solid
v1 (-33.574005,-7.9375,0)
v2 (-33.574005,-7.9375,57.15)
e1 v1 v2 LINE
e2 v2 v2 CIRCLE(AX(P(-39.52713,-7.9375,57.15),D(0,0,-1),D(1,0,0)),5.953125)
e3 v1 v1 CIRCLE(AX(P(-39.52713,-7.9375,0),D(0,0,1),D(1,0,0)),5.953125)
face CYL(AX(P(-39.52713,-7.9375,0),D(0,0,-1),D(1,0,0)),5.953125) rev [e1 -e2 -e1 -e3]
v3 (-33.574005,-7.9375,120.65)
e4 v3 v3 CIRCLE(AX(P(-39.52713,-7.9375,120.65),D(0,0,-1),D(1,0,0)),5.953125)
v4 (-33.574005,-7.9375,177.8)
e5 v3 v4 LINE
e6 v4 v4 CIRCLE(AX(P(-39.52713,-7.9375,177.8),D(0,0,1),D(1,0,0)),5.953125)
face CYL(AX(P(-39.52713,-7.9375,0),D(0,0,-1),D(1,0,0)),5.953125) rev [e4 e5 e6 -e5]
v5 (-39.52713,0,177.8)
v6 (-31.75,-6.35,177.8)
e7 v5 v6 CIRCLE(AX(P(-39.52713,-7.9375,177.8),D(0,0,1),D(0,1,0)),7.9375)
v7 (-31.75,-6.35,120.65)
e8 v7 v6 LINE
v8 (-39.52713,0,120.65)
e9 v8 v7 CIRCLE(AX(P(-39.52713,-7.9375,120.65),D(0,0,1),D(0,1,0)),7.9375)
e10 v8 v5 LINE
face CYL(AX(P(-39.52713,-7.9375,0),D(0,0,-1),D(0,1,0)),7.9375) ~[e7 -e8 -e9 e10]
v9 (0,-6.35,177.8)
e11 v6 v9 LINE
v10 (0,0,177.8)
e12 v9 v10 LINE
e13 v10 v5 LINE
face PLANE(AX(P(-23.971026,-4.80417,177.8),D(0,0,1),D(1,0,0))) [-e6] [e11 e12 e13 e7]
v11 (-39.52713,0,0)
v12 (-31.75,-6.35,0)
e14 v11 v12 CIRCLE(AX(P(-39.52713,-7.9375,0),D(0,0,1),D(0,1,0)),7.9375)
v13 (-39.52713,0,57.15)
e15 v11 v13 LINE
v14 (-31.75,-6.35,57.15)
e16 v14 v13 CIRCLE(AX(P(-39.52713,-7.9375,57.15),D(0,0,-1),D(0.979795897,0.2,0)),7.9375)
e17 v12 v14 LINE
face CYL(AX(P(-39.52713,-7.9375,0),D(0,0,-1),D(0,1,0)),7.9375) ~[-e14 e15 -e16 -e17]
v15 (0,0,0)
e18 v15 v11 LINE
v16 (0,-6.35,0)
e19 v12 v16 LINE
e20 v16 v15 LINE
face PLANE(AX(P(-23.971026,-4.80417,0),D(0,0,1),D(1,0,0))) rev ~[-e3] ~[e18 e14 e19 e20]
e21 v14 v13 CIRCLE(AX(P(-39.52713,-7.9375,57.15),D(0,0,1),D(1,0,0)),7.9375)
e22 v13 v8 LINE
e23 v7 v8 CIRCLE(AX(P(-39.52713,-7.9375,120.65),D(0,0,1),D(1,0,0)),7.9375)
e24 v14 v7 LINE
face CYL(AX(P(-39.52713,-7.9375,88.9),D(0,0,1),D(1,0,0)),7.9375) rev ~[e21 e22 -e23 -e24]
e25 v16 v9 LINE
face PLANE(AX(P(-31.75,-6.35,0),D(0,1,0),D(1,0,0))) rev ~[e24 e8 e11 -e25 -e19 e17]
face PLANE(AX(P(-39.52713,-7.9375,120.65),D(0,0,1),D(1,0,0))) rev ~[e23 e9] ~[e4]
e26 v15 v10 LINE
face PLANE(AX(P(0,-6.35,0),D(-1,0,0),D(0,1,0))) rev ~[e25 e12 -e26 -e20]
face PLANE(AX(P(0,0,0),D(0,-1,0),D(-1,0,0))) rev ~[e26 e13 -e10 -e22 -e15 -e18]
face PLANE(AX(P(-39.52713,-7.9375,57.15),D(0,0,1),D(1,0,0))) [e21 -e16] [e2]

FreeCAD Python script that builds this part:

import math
import FreeCAD as App
import Part
import Sketcher
from FreeCAD import Vector
Q = App.Units.Quantity

doc = App.newDocument("Part")
params = doc.addObject("Spreadsheet::Sheet", "Params")
for row, (alias, value) in enumerate([
    ("sketch1_diameter", "0.46875 in"),
    ("sketch1_radius", "0.3125 in"),
    ("sketch1_width", "1.25 in"),
    ("sketch1_height", "0.25 in"),
    ("pad1_length", "7 in"),
    ("sketch2_diameter", "0.625 in"),
    ("pocket1_length", "2.5 in"),
], start=1):
    params.set(f"A{row}", alias)
    params.set(f"B{row}", "=" + value)
    params.setAlias(f"B{row}", alias)

body = doc.addObject("PartDesign::Body", "Body")

sketch1 = body.newObject("Sketcher::SketchObject", "Sketch")
sketch1.AttachmentSupport = (doc.getObject("XY_Plane"), [""])
sketch1.MapMode = "FlatFace"
sketch1.addGeometry([
    Part.LineSegment(Vector(0, -6, 0), Vector(0, 0, 0)),
    Part.LineSegment(Vector(0, 0, 0), Vector(-40, 0, 0)),
    Part.ArcOfCircle(Part.Circle(Vector(-40, -8, 0), Vector(0, 0, 1), 8), math.radians(90), math.radians(372)),
    Part.LineSegment(Vector(-32, -6, 0), Vector(0, -6, 0)),
    Part.Circle(Vector(-40, -8, 0), Vector(0, 0, 1), 6),
], False)
sketch1.addConstraint([
    Sketcher.Constraint("Coincident", 0, 2, 1, 1),
    Sketcher.Constraint("Tangent", 1, 2, 2, 1),
    Sketcher.Constraint("Coincident", 2, 2, 3, 1),
    Sketcher.Constraint("Coincident", 3, 2, 0, 1),
    Sketcher.Constraint("Vertical", 0),
    Sketcher.Constraint("Horizontal", 1),
    Sketcher.Constraint("Horizontal", 3),
    Sketcher.Constraint("Coincident", 0, 2, -1, 1),
    Sketcher.Constraint("Coincident", 4, 3, 2, 3),
    Sketcher.Constraint("Diameter", 4, Q("0.46875 in")),
    Sketcher.Constraint("Radius", 2, Q("0.3125 in")),
    Sketcher.Constraint("DistanceX", 3, 1, 3, 2, Q("1.25 in")),
    Sketcher.Constraint("DistanceY", 0, 1, 0, 2, Q("0.25 in")),
])
sketch1.setExpression("Constraints[9]", "Params.sketch1_diameter")
sketch1.setExpression("Constraints[10]", "Params.sketch1_radius")
sketch1.setExpression("Constraints[11]", "Params.sketch1_width")
sketch1.setExpression("Constraints[12]", "Params.sketch1_height")
pad1 = body.newObject("PartDesign::Pad", "Pad")
pad1.Profile = sketch1
pad1.setExpression("Length", "Params.pad1_length")

sketch2 = body.newObject("Sketcher::SketchObject", "Sketch001")
sketch2.AttachmentSupport = (doc.getObject("XY_Plane"), [""])
sketch2.MapMode = "FlatFace"
sketch2.AttachmentOffset = App.Placement(Vector(0, 0, 3.5 * 25.4), App.Rotation())
sketch2.addGeometry(Part.Circle(Vector(-40, -8, 0), Vector(0, 0, 1), 8), False)
sketch2.addConstraint([
    Sketcher.Constraint("Diameter", 0, Q("0.625 in")),
    Sketcher.Constraint("DistanceY", 0, 3, -1, 1, Q("0.3125 in")),
    Sketcher.Constraint("DistanceX", 0, 3, -1, 1, 39.52713),
])
sketch2.setExpression("Constraints[0]", "Params.sketch2_diameter")
pocket1 = body.newObject("PartDesign::Pocket", "Pocket")
pocket1.Profile = sketch2
pocket1.setExpression("Length", "Params.pocket1_length")
pocket1.Midplane = True

doc.recompute()
